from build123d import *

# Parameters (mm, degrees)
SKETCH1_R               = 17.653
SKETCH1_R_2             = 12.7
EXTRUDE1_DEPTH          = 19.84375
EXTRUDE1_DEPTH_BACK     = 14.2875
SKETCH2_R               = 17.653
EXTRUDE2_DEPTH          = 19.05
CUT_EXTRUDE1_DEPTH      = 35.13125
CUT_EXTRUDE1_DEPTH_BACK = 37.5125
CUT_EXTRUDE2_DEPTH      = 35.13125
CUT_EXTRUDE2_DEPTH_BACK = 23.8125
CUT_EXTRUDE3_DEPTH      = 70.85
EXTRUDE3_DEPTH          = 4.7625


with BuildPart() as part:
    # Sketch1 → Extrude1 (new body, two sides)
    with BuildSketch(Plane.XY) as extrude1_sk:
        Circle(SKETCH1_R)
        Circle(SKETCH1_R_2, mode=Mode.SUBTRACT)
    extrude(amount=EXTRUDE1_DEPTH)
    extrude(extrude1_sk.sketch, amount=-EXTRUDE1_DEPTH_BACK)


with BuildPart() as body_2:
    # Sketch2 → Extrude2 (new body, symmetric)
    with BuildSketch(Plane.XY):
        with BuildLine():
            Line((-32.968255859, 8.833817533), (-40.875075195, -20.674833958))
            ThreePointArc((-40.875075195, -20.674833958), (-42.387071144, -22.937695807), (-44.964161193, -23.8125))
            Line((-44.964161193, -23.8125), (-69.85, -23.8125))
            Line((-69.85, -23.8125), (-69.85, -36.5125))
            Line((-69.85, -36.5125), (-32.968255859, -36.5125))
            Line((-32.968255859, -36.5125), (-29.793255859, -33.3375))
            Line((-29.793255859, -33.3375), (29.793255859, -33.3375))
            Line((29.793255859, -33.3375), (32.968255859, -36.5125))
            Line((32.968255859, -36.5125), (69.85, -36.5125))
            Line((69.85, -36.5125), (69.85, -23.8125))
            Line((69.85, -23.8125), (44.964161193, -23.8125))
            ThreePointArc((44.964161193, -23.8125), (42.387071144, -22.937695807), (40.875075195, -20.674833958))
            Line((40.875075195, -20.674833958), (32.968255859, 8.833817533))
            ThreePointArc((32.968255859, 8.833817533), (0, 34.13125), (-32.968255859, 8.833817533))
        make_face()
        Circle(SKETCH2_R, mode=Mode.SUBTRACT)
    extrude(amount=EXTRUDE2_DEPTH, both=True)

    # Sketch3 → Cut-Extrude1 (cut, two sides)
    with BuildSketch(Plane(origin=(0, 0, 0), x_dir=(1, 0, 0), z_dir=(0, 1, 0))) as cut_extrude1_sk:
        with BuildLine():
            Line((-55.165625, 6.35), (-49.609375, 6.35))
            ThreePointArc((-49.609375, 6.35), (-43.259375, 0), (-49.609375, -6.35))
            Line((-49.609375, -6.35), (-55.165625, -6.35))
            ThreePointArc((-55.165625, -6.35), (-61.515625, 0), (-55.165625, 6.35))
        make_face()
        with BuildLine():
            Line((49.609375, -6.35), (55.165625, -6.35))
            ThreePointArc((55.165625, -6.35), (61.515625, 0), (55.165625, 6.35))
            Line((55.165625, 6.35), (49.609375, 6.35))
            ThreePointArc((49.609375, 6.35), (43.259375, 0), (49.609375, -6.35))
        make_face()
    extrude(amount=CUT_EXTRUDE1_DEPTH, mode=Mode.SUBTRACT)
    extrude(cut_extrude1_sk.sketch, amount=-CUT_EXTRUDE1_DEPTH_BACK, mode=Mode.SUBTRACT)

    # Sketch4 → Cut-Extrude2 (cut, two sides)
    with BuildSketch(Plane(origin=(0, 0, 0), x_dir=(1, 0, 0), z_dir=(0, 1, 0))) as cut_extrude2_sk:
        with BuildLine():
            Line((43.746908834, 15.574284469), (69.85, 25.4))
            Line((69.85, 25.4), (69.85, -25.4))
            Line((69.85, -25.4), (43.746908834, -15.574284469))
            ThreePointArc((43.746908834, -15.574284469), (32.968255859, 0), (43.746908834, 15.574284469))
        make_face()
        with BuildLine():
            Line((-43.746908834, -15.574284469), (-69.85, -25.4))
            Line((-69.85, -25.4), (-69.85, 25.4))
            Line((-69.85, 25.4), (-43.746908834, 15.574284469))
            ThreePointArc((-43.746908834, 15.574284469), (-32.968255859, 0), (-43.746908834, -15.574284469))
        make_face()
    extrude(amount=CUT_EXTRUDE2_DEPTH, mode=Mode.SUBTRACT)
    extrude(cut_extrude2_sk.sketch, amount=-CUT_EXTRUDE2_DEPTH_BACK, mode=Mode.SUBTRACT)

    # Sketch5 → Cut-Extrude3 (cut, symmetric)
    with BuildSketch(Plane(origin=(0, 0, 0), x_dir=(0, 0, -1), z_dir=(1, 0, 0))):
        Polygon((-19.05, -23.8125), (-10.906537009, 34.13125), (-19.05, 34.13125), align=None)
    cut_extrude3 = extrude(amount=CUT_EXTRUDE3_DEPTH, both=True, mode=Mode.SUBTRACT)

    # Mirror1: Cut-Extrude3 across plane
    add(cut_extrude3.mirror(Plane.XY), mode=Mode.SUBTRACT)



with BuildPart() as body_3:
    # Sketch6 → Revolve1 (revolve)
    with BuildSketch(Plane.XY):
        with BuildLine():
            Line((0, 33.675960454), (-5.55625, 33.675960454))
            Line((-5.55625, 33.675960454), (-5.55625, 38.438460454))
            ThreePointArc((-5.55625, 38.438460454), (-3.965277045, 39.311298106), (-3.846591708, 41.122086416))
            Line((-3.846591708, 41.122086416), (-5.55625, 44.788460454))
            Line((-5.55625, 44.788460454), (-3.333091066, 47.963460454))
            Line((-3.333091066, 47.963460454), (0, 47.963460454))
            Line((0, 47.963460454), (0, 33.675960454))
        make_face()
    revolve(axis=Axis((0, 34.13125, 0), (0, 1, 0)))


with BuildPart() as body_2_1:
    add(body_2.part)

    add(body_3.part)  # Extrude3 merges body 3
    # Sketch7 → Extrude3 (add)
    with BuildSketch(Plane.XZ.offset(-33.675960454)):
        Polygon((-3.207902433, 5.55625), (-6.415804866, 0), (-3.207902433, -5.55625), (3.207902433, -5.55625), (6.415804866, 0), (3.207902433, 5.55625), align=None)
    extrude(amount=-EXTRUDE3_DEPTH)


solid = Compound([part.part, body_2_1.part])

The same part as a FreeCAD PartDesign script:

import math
import FreeCAD as App
import Part
import Sketcher
from FreeCAD import Vector
Q = App.Units.Quantity

doc = App.newDocument("Part")
body = doc.addObject("PartDesign::Body", "Body")

# Sketch on XY plane
sketch1 = doc.addObject("Sketcher::SketchObject", "Sketch")
body.addObject(sketch1)
sketch1.AttachmentSupport = (doc.XY_Plane, [""])
sketch1.MapMode = "FlatFace"
sketch1.addGeometry([
    Part.Circle(Vector(0, 0, 0), Vector(0, 0, 1), 18),
    Part.Circle(Vector(0, 0, 0), Vector(0, 0, 1), 13),
], False)
sketch1.addConstraint([
    Sketcher.Constraint("Coincident", 0, 3, -1, 1),
    Sketcher.Constraint("Coincident", 1, 3, -1, 1),
    Sketcher.Constraint("Diameter", 1, Q("1 in")),
    Sketcher.Constraint("Diameter", 0, Q("1.39 in")),
])
pad1 = doc.addObject("PartDesign::Pad", "Pad")
body.addObject(pad1)
pad1.Profile = sketch1
pad1.Type = "TwoLengths"
pad1.Length = Q("0.78125 in")
pad1.Length2 = Q("0.5625 in")
body2 = doc.addObject("PartDesign::Body", "Body001")

# Sketch on XY plane
sketch2 = doc.addObject("Sketcher::SketchObject", "Sketch001")
body2.addObject(sketch2)
sketch2.AttachmentSupport = (doc.getObject("XY_Plane001"), [""])
sketch2.MapMode = "FlatFace"
sketch2.addGeometry([
    Part.LineSegment(Vector(-33, 8.8, 0), Vector(-40.9, -20.7, 0)),  # 0
    Part.ArcOfCircle(Part.Circle(Vector(-45, -19.6, 0), Vector(0, 0, 1), 4.2), math.radians(-90), math.radians(-15)),  # 1
    Part.LineSegment(Vector(-45, -23.8, 0), Vector(-69.8, -23.8, 0)),  # 2
    Part.LineSegment(Vector(-69.8, -23.8, 0), Vector(-69.8, -36.5, 0)),  # 3
    Part.LineSegment(Vector(-69.8, -36.5, 0), Vector(-33, -36.5, 0)),  # 4
    Part.LineSegment(Vector(-33, -36.5, 0), Vector(-29.8, -33.3, 0)),  # 5
    Part.LineSegment(Vector(-29.8, -33.3, 0), Vector(29.8, -33.3, 0)),  # 6
    Part.LineSegment(Vector(29.8, -33.3, 0), Vector(33, -36.5, 0)),  # 7
    Part.LineSegment(Vector(33, -36.5, 0), Vector(69.8, -36.5, 0)),  # 8
    Part.LineSegment(Vector(69.8, -36.5, 0), Vector(69.8, -23.8, 0)),  # 9
    Part.LineSegment(Vector(69.8, -23.8, 0), Vector(45, -23.8, 0)),  # 10
    Part.ArcOfCircle(Part.Circle(Vector(45, -19.6, 0), Vector(0, 0, 1), 4.2), math.radians(-165), math.radians(-90)),  # 11
    Part.LineSegment(Vector(40.9, -20.7, 0), Vector(33, 8.8, 0)),  # 12
    Part.ArcOfCircle(Part.Circle(Vector(0, 0, 0), Vector(0, 0, 1), 34.1), math.radians(15), math.radians(165)),  # 13
    Part.Circle(Vector(0, 0, 0), Vector(0, 0, 1), 17.7),  # 14
], False)
sketch2.addConstraint([
    Sketcher.Constraint("Tangent", 0, 2, 1, 2),
    Sketcher.Constraint("Tangent", 1, 1, 2, 1),
    Sketcher.Constraint("Coincident", 2, 2, 3, 1),
    Sketcher.Constraint("Coincident", 3, 2, 4, 1),
    Sketcher.Constraint("Coincident", 4, 2, 5, 1),
    Sketcher.Constraint("Coincident", 5, 2, 6, 1),
    Sketcher.Constraint("Coincident", 6, 2, 7, 1),
    Sketcher.Constraint("Coincident", 7, 2, 8, 1),
    Sketcher.Constraint("Coincident", 8, 2, 9, 1),
    Sketcher.Constraint("Coincident", 9, 2, 10, 1),
    Sketcher.Constraint("Tangent", 10, 2, 11, 2),
    Sketcher.Constraint("Tangent", 11, 1, 12, 1),
    Sketcher.Constraint("Tangent", 12, 2, 13, 1),
    Sketcher.Constraint("Tangent", 13, 2, 0, 1),
    Sketcher.Constraint("Horizontal", 2),
    Sketcher.Constraint("Vertical", 3),
    Sketcher.Constraint("Horizontal", 4),
    Sketcher.Constraint("Horizontal", 6),
    Sketcher.Constraint("Horizontal", 8),
    Sketcher.Constraint("Vertical", 9),
    Sketcher.Constraint("Horizontal", 10),
    Sketcher.Constraint("Coincident", 13, 3, -1, 1),
    Sketcher.Constraint("Coincident", 14, 3, -1, 1),
    Sketcher.Constraint("Equal", 1, 11),
    Sketcher.Constraint("Symmetric", 1, 3, 11, 3, -2),
    Sketcher.Constraint("Symmetric", 4, 2, 7, 2, -2),
    Sketcher.Constraint("Perpendicular", 5, 7),
    Sketcher.Constraint("Vertical", 7, 2, 12, 2),
    Sketcher.Constraint("Equal", 4, 8),
    Sketcher.Constraint("Equal", 5, 7),
    Sketcher.Constraint("Diameter", 14, Q("1.39 in")),
    Sketcher.Constraint("DistanceY", 3, 2, 3, 1, Q("0.5 in")),
    Sketcher.Constraint("Angle", 0, Q("-105 deg")),
    Sketcher.Constraint("Radius", 13, Q("1.34375 in")),
    Sketcher.Constraint("DistanceX", 2, 2, -1, 1, Q("2.75 in")),
    Sketcher.Constraint("DistanceY", 1, 1, -1, 1, Q("0.9375 in")),
    Sketcher.Constraint("DistanceY", 5, 2, -1, 1, Q("1.3125 in")),
    Sketcher.Constraint("Radius", 1, Q("4.233333 mm")),
])
pad2 = doc.addObject("PartDesign::Pad", "Pad001")
body2.addObject(pad2)
pad2.Profile = sketch2
pad2.Length = Q("1.5 in")
pad2.Midplane = True

# Sketch on XZ plane
sketch3 = doc.addObject("Sketcher::SketchObject", "Sketch002")
body2.addObject(sketch3)
sketch3.AttachmentSupport = (doc.getObject("XZ_Plane001"), [""])
sketch3.MapMode = "FlatFace"
sketch3.addGeometry([
    Part.LineSegment(Vector(-50, -6, 0), Vector(-55, -6, 0)),  # 0
    Part.ArcOfCircle(Part.Circle(Vector(-55, 0, 0), Vector(0, 0, 1), 6), math.radians(90), math.radians(270)),  # 1
    Part.LineSegment(Vector(-55, 6, 0), Vector(-50, 6, 0)),  # 2
    Part.ArcOfCircle(Part.Circle(Vector(-50, 0, 0), Vector(0, 0, 1), 6), math.radians(-90), math.radians(90)),  # 3
    Part.LineSegment(Vector(50, 6, 0), Vector(55, 6, 0)),  # 4
    Part.ArcOfCircle(Part.Circle(Vector(55, 0, 0), Vector(0, 0, 1), 6), math.radians(-90), math.radians(90)),  # 5
    Part.LineSegment(Vector(55, -6, 0), Vector(50, -6, 0)),  # 6
    Part.ArcOfCircle(Part.Circle(Vector(50, 0, 0), Vector(0, 0, 1), 6), math.radians(90), math.radians(270)),  # 7
], False)
sketch3.addConstraint([
    Sketcher.Constraint("Tangent", 0, 2, 1, 2),
    Sketcher.Constraint("Tangent", 1, 1, 2, 1),
    Sketcher.Constraint("Tangent", 2, 2, 3, 2),
    Sketcher.Constraint("Tangent", 3, 1, 0, 1),
    Sketcher.Constraint("Tangent", 4, 2, 5, 2),
    Sketcher.Constraint("Tangent", 5, 1, 6, 1),
    Sketcher.Constraint("Tangent", 6, 2, 7, 2),
    Sketcher.Constraint("Tangent", 7, 1, 4, 1),
    Sketcher.Constraint("Horizontal", 0),
    Sketcher.Constraint("Horizontal", 2),
    Sketcher.Constraint("Horizontal", 4),
    Sketcher.Constraint("Horizontal", 6),
    Sketcher.Constraint("Equal", 3, 5),
    Sketcher.Constraint("Symmetric", 1, 3, 5, 3, -1, 1),
    Sketcher.Constraint("Symmetric", 3, 3, 7, 3, -2),
    Sketcher.Constraint("Radius", 1, Q("0.25 in")),
    Sketcher.Constraint("DistanceX", 0, 2, 0, 1, Q("0.21875 in")),
    Sketcher.Constraint("DistanceX", 1, 3, -1, 1, Q("2.171875 in")),
])
pocket1 = doc.addObject("PartDesign::Pocket", "Pocket")
body2.addObject(pocket1)
pocket1.Profile = sketch3
pocket1.Type = "ThroughAll"
pocket1.Midplane = True

# Sketch on XZ plane
sketch4 = doc.addObject("Sketcher::SketchObject", "Sketch003")
body2.addObject(sketch4)
sketch4.AttachmentSupport = (doc.getObject("XZ_Plane001"), [""])
sketch4.MapMode = "FlatFace"
sketch4.addGeometry([
    Part.LineSegment(Vector(70, -25, 0), Vector(44, -16, 0)),  # 0
    Part.ArcOfCircle(Part.Circle(Vector(50, 0, 0), Vector(0, 0, 1), 17), math.radians(111), math.radians(249)),  # 1
    Part.LineSegment(Vector(44, 16, 0), Vector(70, 25, 0)),  # 2
    Part.LineSegment(Vector(70, 25, 0), Vector(70, -25, 0)),  # 3
    Part.LineSegment(Vector(-70, 25, 0), Vector(-44, 16, 0)),  # 4
    Part.ArcOfCircle(Part.Circle(Vector(-50, 0, 0), Vector(0, 0, 1), 17), math.radians(-69), math.radians(69)),  # 5
    Part.LineSegment(Vector(-44, -16, 0), Vector(-70, -25, 0)),  # 6
    Part.LineSegment(Vector(-70, -25, 0), Vector(-70, 25, 0)),  # 7
], False)
sketch4.addConstraint([
    Sketcher.Constraint("Tangent", 0, 2, 1, 2),
    Sketcher.Constraint("Tangent", 1, 1, 2, 1),
    Sketcher.Constraint("Coincident", 2, 2, 3, 1),
    Sketcher.Constraint("Coincident", 3, 2, 0, 1),
    Sketcher.Constraint("Tangent", 4, 2, 5, 2),
    Sketcher.Constraint("Tangent", 5, 1, 6, 1),
    Sketcher.Constraint("Coincident", 6, 2, 7, 1),
    Sketcher.Constraint("Coincident", 7, 2, 4, 1),
    Sketcher.Constraint("Vertical", 3),
    Sketcher.Constraint("Vertical", 7),
    Sketcher.Constraint("Equal", 1, 5),
    Sketcher.Constraint("Symmetric", 1, 3, 5, 3, -1, 1),
    Sketcher.Constraint("Symmetric", 2, 2, 6, 2, -1, 1),
    Sketcher.Constraint("Symmetric", 1, 1, 4, 2, -2),
    Sketcher.Constraint("Parallel", 0, 4),
    Sketcher.Constraint("DistanceY", 3, 2, 3, 1, Q("2 in")),
    Sketcher.Constraint("DistanceX", -1, 1, 2, 2, Q("2.75 in")),
    Sketcher.Constraint("DistanceX", -1, 1, 1, 3, Q("1.953125 in")),
    Sketcher.Constraint("Radius", 1, Q("16.641119 mm")),
])
pocket2 = doc.addObject("PartDesign::Pocket", "Pocket001")
body2.addObject(pocket2)
pocket2.Profile = sketch4
pocket2.Type = "TwoLengths"
pocket2.Length = 35.13125
pocket2.Length2 = Q("0.9375 in")

# Sketch on YZ plane
sketch5 = doc.addObject("Sketcher::SketchObject", "Sketch004")
body2.addObject(sketch5)
sketch5.AttachmentSupport = (doc.getObject("YZ_Plane001"), [""])
sketch5.MapMode = "FlatFace"
sketch5.addGeometry([
    Part.LineSegment(Vector(-24, 19, 0), Vector(34, 11, 0)),
    Part.LineSegment(Vector(34, 11, 0), Vector(34, 19, 0)),
    Part.LineSegment(Vector(34, 19, 0), Vector(-24, 19, 0)),
], False)
sketch5.addConstraint([
    Sketcher.Constraint("Coincident", 0, 2, 1, 1),
    Sketcher.Constraint("Coincident", 1, 2, 2, 1),
    Sketcher.Constraint("Coincident", 2, 2, 0, 1),
    Sketcher.Constraint("Vertical", 1),
    Sketcher.Constraint("Horizontal", 2),
    Sketcher.Constraint("Angle", 0, Q("-8 deg")),
    Sketcher.Constraint("DistanceX", 2, 2, 2, 1, Q("2.28125 in")),
    Sketcher.Constraint("DistanceY", -1, 1, 1, 2, Q("0.75 in")),
    Sketcher.Constraint("DistanceX", -1, 1, 0, 2, Q("1.34375 in")),
])
pocket3 = doc.addObject("PartDesign::Pocket", "Pocket002")
body2.addObject(pocket3)
pocket3.Profile = sketch5
pocket3.Length = 141.7
pocket3.Midplane = True
doc.recompute()

mirrored = doc.addObject("PartDesign::Mirrored", "Mirrored")
body2.addObject(mirrored)
mirrored.Originals = [pocket3]
mirrored.MirrorPlane = (doc.getObject("XY_Plane001"), [""])
body2.Tip = mirrored
body3 = doc.addObject("PartDesign::Body", "Body002")

# Sketch on XY plane
sketch6 = doc.addObject("Sketcher::SketchObject", "Sketch005")
body3.addObject(sketch6)
sketch6.AttachmentSupport = (doc.getObject("XY_Plane002"), [""])
sketch6.MapMode = "FlatFace"
sketch6.addGeometry([
    Part.LineSegment(Vector(-5.6, 33.7, 0), Vector(0, 33.7, 0)),  # 0
    Part.LineSegment(Vector(0, 33.7, 0), Vector(0, 48, 0)),  # 1
    Part.LineSegment(Vector(0, 48, 0), Vector(-3.3, 48, 0)),  # 2
    Part.LineSegment(Vector(-3.3, 48, 0), Vector(-5.6, 44.8, 0)),  # 3
    Part.LineSegment(Vector(-5.6, 44.8, 0), Vector(-3.8, 41.1, 0)),  # 4
    Part.ArcOfCircle(Part.Circle(Vector(-5.6, 40.3, 0), Vector(0, 0, 1), 1.9), math.radians(-90), math.radians(25)),  # 5
    Part.LineSegment(Vector(-5.6, 38.4, 0), Vector(-5.6, 33.7, 0)),  # 6
], False)
sketch6.addConstraint([
    Sketcher.Constraint("Coincident", 0, 2, 1, 1),
    Sketcher.Constraint("Coincident", 1, 2, 2, 1),
    Sketcher.Constraint("Coincident", 2, 2, 3, 1),
    Sketcher.Constraint("Coincident", 3, 2, 4, 1),
    Sketcher.Constraint("Tangent", 4, 2, 5, 2),
    Sketcher.Constraint("Coincident", 5, 1, 6, 1),
    Sketcher.Constraint("Coincident", 6, 2, 0, 1),
    Sketcher.Constraint("Horizontal", 0),
    Sketcher.Constraint("Vertical", 1),
    Sketcher.Constraint("Horizontal", 2),
    Sketcher.Constraint("Vertical", 6),
    Sketcher.Constraint("PointOnObject", 0, 2, -2),
    Sketcher.Constraint("Vertical", 5, 3, 3, 2),
    Sketcher.Constraint("Vertical", 3, 2, 5, 1),
    Sketcher.Constraint("Angle", 3, Q("-125 deg")),
    Sketcher.Constraint("Angle", 4, Q("-65 deg")),
    Sketcher.Constraint("DistanceX", 0, 1, 0, 2, Q("0.21875 in")),
    Sketcher.Constraint("DistanceY", 1, 1, 1, 2, Q("0.5625 in")),
    Sketcher.Constraint("DistanceY", 6, 2, 6, 1, Q("0.1875 in")),
    Sketcher.Constraint("Radius", 5, Q("1.886399 mm")),
    Sketcher.Constraint("DistanceY", -1, 1, 5, 3, Q("40.32486 mm")),
])
revolution = doc.addObject("PartDesign::Revolution", "Revolution")
body3.addObject(revolution)
revolution.Profile = sketch6
revolution.ReferenceAxis = (sketch6, ["V_Axis"])
revolution.Angle = 360
doc.recompute()

boolean = doc.addObject("PartDesign::Boolean", "Boolean")
body2.addObject(boolean)
boolean.Type = "Fuse"
boolean.addObjects([body3])

# Sketch on XZ plane
sketch7 = doc.addObject("Sketcher::SketchObject", "Sketch006")
body2.addObject(sketch7)
sketch7.AttachmentSupport = (doc.getObject("XZ_Plane001"), [""])
sketch7.MapMode = "FlatFace"
sketch7.AttachmentOffset = App.Placement(Vector(0, 0, -33.67596), App.Rotation())
sketch7.addGeometry([
    Part.LineSegment(Vector(-3, 6, 0), Vector(-6, 0, 0)),  # 0
    Part.LineSegment(Vector(-6, 0, 0), Vector(-3, -6, 0)),  # 1
    Part.LineSegment(Vector(-3, -6, 0), Vector(3, -6, 0)),  # 2
    Part.LineSegment(Vector(3, -6, 0), Vector(6, 0, 0)),  # 3
    Part.LineSegment(Vector(6, 0, 0), Vector(3, 6, 0)),  # 4
    Part.LineSegment(Vector(3, 6, 0), Vector(-3, 6, 0)),  # 5
], False)
sketch7.addConstraint([
    Sketcher.Constraint("Coincident", 0, 2, 1, 1),
    Sketcher.Constraint("Coincident", 1, 2, 2, 1),
    Sketcher.Constraint("Coincident", 2, 2, 3, 1),
    Sketcher.Constraint("Coincident", 3, 2, 4, 1),
    Sketcher.Constraint("Coincident", 4, 2, 5, 1),
    Sketcher.Constraint("Coincident", 5, 2, 0, 1),
    Sketcher.Constraint("Horizontal", 2),
    Sketcher.Constraint("Horizontal", 5),
    Sketcher.Constraint("Symmetric", 0, 2, 3, 2, -1, 1),
    Sketcher.Constraint("Symmetric", 1, 2, 4, 2, -1, 1),
    Sketcher.Constraint("PointOnObject", 0, 2, -1),
    Sketcher.Constraint("Parallel", 0, 3),
    Sketcher.Constraint("Vertical", 2, 2, 4, 2),
    Sketcher.Constraint("Angle", 0, Q("-120 deg")),
    Sketcher.Constraint("DistanceY", 1, 2, -1, 1, Q("0.21875 in")),
    Sketcher.Constraint("DistanceX", 2, 1, 2, 2, Q("6.415805 mm")),
])
pad3 = doc.addObject("PartDesign::Pad", "Pad002")
body2.addObject(pad3)
pad3.Profile = sketch7
pad3.Length = Q("0.1875 in")
pad3.Reversed = True

doc.recompute()
